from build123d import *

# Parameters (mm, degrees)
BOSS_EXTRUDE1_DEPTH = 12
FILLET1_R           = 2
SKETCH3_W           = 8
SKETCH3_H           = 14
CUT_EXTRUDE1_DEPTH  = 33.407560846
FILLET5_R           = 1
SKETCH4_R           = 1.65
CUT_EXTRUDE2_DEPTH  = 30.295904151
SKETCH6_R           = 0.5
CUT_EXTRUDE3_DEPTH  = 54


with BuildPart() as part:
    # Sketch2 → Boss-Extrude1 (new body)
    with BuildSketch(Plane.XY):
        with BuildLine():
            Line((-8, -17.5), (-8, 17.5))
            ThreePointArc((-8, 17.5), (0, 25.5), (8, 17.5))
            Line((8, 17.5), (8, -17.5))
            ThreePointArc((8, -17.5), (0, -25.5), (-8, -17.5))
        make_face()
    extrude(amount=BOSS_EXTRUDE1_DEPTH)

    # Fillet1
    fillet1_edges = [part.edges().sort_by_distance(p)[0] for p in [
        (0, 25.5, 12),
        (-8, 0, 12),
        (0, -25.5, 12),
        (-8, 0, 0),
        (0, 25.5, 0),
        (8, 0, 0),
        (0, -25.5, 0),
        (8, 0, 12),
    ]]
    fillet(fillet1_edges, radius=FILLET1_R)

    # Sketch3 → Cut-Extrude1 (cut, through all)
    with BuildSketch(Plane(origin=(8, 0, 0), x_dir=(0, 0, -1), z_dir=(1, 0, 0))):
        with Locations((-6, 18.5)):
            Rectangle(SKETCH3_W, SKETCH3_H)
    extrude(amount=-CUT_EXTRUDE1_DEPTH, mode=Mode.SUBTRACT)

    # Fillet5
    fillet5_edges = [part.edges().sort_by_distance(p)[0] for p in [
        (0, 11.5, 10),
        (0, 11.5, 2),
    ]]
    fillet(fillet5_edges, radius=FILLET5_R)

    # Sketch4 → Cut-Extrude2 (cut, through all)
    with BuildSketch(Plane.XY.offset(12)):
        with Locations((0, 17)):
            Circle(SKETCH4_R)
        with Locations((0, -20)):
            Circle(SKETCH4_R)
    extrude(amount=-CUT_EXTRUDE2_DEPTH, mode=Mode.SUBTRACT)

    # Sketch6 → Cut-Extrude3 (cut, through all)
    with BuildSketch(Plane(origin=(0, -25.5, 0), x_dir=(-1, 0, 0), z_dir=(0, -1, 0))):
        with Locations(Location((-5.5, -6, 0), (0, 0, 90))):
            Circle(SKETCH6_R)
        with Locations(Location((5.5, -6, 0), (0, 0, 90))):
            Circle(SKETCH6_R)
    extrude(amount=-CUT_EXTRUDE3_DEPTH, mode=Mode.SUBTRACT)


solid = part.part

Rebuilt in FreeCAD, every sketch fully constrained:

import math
import FreeCAD as App
import Part
import Sketcher

V = App.Vector


def edges_at(feature, points):
    """Names of the edges that pass closest to the given points."""
    edges = feature.Shape.Edges
    near = lambda p: min(range(len(edges)), key=lambda i: edges[i].distToShape(Part.Vertex(*p))[0])
    return sorted({f"Edge{near(p) + 1}" for p in points})

doc = App.newDocument("Part")
body = doc.addObject("PartDesign::Body", "Body")

# Sketch on XY plane
sketch1 = body.newObject("Sketcher::SketchObject", "Sketch")
sketch1.AttachmentSupport = (doc.getObject("XY_Plane"), [""])
sketch1.MapMode = "FlatFace"
sketch1.addGeometry(Part.LineSegment(V(-8, 18, 0), V(-8, -18, 0)), False)
sketch1.addGeometry(Part.ArcOfCircle(Part.Circle(V(0, -18, 0), V(0, 0, 1), 8), math.radians(180), math.radians(360)), False)
sketch1.addGeometry(Part.LineSegment(V(8, -18, 0), V(8, 18, 0)), False)
sketch1.addGeometry(Part.ArcOfCircle(Part.Circle(V(0, 18, 0), V(0, 0, 1), 8), math.radians(0), math.radians(180)), False)
sketch1.addConstraint(Sketcher.Constraint("Tangent", 0, 2, 1, 1))
sketch1.addConstraint(Sketcher.Constraint("Tangent", 1, 2, 2, 1))
sketch1.addConstraint(Sketcher.Constraint("Tangent", 2, 2, 3, 1))
sketch1.addConstraint(Sketcher.Constraint("Tangent", 3, 2, 0, 1))
sketch1.addConstraint(Sketcher.Constraint("Vertical", 0))
sketch1.addConstraint(Sketcher.Constraint("Vertical", 2))
sketch1.addConstraint(Sketcher.Constraint("Symmetric", 1, 3, 3, 3, -1, 1))
sketch1.addConstraint(Sketcher.Constraint("Radius", 1, 8.0))
sketch1.addConstraint(Sketcher.Constraint("DistanceY", 0, 2, 0, 1, 35.0))
pad1 = body.newObject("PartDesign::Pad", "Pad")
pad1.Profile = sketch1
pad1.Length = 12
doc.recompute()

fillet = body.newObject("PartDesign::Fillet", "Fillet")
fillet.Base = (pad1, edges_at(pad1, [
    (0, 25.5, 12),
    (-8, 0, 12),
    (0, -25.5, 12),
    (-8, 0, 0),
    (0, 25.5, 0),
    (8, 0, 0),
    (0, -25.5, 0),
    (8, 0, 12),
]))
fillet.Radius = 2

# Sketch on YZ plane
sketch2 = body.newObject("Sketcher::SketchObject", "Sketch001")
sketch2.AttachmentSupport = (doc.getObject("YZ_Plane"), [""])
sketch2.MapMode = "FlatFace"
sketch2.AttachmentOffset = App.Placement(V(0, 0, 8), App.Rotation())
sketch2.addGeometry(Part.LineSegment(V(26, 10, 0), V(12, 10, 0)), False)
sketch2.addGeometry(Part.LineSegment(V(12, 10, 0), V(12, 2, 0)), False)
sketch2.addGeometry(Part.LineSegment(V(12, 2, 0), V(26, 2, 0)), False)
sketch2.addGeometry(Part.LineSegment(V(26, 2, 0), V(26, 10, 0)), False)
sketch2.addConstraint(Sketcher.Constraint("Coincident", 0, 2, 1, 1))
sketch2.addConstraint(Sketcher.Constraint("Coincident", 1, 2, 2, 1))
sketch2.addConstraint(Sketcher.Constraint("Coincident", 2, 2, 3, 1))
sketch2.addConstraint(Sketcher.Constraint("Coincident", 3, 2, 0, 1))
sketch2.addConstraint(Sketcher.Constraint("Horizontal", 0))
sketch2.addConstraint(Sketcher.Constraint("Vertical", 1))
sketch2.addConstraint(Sketcher.Constraint("Horizontal", 2))
sketch2.addConstraint(Sketcher.Constraint("Vertical", 3))
sketch2.addConstraint(Sketcher.Constraint("DistanceX", 0, 2, 0, 1, 14.0))
sketch2.addConstraint(Sketcher.Constraint("DistanceY", 1, 2, 1, 1, 8.0))
sketch2.addConstraint(Sketcher.Constraint("DistanceY", -1, 1, 0, 2, 10.0))
sketch2.addConstraint(Sketcher.Constraint("DistanceX", -1, 1, 0, 2, 11.5))
pocket1 = body.newObject("PartDesign::Pocket", "Pocket")
pocket1.Profile = sketch2
pocket1.Type = "ThroughAll"
doc.recompute()

fillet2 = body.newObject("PartDesign::Fillet", "Fillet001")
fillet2.Base = (pocket1, edges_at(pocket1, [(0, 11.5, 10), (0, 11.5, 2)]))
fillet2.Radius = 1

# Sketch on XY plane
sketch3 = body.newObject("Sketcher::SketchObject", "Sketch002")
sketch3.AttachmentSupport = (doc.getObject("XY_Plane"), [""])
sketch3.MapMode = "FlatFace"
sketch3.AttachmentOffset = App.Placement(V(0, 0, 12), App.Rotation())
sketch3.addGeometry(Part.Circle(V(0, 17, 0), V(0, 0, 1), 1.6), False)
sketch3.addGeometry(Part.Circle(V(0, -20, 0), V(0, 0, 1), 1.6), False)
sketch3.addConstraint(Sketcher.Constraint("Equal", 0, 1))
sketch3.addConstraint(Sketcher.Constraint("PointOnObject", 0, 3, -2))
sketch3.addConstraint(Sketcher.Constraint("PointOnObject", 1, 3, -2))
sketch3.addConstraint(Sketcher.Constraint("Diameter", 0, 3.3))
sketch3.addConstraint(Sketcher.Constraint("DistanceY", -1, 1, 0, 3, 17.0))
sketch3.addConstraint(Sketcher.Constraint("DistanceY", 1, 3, -1, 1, 20.0))
pocket2 = body.newObject("PartDesign::Pocket", "Pocket001")
pocket2.Profile = sketch3
pocket2.Type = "ThroughAll"

# Sketch on XZ plane
sketch4 = body.newObject("Sketcher::SketchObject", "Sketch003")
sketch4.AttachmentSupport = (doc.getObject("XZ_Plane"), [""])
sketch4.MapMode = "FlatFace"
sketch4.AttachmentOffset = App.Placement(V(0, 0, 25.5), App.Rotation())
sketch4.addGeometry(Part.Circle(V(5.5, 6, 0), V(0, 0, 1), 0.5), False)
sketch4.addGeometry(Part.Circle(V(-5.5, 6, 0), V(0, 0, 1), 0.5), False)
sketch4.addConstraint(Sketcher.Constraint("Equal", 0, 1))
sketch4.addConstraint(Sketcher.Constraint("Symmetric", 0, 3, 1, 3, -2))
sketch4.addConstraint(Sketcher.Constraint("Diameter", 0, 1.0))
sketch4.addConstraint(Sketcher.Constraint("DistanceY", -1, 1, 0, 3, 6.0))
sketch4.addConstraint(Sketcher.Constraint("DistanceX", 1, 3, 0, 3, 11.0))
pocket3 = body.newObject("PartDesign::Pocket", "Pocket002")
pocket3.Profile = sketch4
pocket3.Type = "ThroughAll"

doc.recompute()
